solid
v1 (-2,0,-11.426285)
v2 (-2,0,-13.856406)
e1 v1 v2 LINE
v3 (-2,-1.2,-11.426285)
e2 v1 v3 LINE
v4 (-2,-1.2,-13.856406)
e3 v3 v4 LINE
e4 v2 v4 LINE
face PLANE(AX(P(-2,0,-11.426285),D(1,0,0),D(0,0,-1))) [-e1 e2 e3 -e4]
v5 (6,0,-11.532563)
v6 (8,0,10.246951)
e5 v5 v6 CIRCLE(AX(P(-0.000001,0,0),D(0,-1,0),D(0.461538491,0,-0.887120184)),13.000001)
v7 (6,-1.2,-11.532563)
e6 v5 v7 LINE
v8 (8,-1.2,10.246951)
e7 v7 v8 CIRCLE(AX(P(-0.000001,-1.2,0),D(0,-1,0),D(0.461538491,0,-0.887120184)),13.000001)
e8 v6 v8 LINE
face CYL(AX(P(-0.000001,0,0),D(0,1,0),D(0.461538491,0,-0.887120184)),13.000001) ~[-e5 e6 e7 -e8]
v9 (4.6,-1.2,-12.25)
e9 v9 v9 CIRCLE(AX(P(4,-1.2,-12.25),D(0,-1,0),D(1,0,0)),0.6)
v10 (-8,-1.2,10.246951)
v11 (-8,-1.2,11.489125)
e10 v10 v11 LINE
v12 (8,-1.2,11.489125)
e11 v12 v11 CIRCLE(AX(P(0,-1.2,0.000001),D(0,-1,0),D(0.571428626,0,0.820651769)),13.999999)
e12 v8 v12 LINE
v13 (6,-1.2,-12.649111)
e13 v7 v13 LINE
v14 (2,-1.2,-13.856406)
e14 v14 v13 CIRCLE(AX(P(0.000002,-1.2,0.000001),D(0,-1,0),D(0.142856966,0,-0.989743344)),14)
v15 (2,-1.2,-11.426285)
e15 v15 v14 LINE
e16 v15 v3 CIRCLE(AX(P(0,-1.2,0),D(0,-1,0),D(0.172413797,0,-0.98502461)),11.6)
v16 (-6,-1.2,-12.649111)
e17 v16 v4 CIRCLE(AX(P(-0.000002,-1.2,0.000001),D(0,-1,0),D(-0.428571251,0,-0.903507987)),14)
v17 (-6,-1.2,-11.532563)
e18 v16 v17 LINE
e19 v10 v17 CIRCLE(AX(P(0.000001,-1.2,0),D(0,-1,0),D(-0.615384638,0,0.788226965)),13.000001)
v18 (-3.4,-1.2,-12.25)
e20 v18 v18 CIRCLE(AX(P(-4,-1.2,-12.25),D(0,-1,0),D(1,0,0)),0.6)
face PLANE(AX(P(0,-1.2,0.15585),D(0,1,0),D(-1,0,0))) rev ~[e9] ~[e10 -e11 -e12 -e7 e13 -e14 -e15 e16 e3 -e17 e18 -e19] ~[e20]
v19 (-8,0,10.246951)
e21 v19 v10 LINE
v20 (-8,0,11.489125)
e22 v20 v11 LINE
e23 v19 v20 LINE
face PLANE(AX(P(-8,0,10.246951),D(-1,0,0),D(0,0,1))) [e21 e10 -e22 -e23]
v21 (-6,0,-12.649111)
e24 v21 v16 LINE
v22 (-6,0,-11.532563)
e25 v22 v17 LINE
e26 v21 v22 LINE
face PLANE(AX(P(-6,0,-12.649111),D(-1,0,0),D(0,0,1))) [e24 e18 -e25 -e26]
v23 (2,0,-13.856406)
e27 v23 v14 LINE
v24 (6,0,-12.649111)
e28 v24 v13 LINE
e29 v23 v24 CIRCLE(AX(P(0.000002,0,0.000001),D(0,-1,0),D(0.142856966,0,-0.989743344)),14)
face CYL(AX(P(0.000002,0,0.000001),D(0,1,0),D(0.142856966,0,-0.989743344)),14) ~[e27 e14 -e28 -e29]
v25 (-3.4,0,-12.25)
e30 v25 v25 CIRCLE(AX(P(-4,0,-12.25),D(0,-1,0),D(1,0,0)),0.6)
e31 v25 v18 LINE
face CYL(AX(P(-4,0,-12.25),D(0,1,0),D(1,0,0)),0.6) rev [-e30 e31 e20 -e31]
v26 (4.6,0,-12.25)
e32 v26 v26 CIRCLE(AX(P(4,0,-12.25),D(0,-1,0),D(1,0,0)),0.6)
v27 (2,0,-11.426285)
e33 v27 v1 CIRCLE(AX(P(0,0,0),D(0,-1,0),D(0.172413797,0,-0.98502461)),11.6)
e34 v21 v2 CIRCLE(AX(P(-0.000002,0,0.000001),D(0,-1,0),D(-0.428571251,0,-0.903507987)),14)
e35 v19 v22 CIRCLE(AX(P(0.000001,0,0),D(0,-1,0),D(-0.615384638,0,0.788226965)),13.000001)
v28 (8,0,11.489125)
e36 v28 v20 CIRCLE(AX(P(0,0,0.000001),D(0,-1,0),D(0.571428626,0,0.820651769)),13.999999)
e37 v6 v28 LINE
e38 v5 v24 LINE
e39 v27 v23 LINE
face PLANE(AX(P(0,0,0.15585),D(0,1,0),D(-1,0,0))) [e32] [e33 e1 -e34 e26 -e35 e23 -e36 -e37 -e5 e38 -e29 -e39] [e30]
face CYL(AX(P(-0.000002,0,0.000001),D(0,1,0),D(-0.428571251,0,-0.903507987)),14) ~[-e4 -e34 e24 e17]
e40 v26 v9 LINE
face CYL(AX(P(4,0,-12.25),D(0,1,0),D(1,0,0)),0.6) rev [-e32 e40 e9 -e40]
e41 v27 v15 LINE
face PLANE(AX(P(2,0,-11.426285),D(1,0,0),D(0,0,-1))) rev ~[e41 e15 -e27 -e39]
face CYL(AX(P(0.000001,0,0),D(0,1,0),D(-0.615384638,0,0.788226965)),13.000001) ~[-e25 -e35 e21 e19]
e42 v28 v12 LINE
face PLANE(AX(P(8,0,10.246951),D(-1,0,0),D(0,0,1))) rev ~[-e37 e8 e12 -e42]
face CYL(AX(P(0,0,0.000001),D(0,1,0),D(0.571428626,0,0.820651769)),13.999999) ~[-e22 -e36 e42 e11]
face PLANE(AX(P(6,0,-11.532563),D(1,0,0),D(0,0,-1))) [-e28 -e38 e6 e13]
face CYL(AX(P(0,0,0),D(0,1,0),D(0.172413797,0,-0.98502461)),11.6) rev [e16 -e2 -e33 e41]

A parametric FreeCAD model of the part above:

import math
import FreeCAD as App
import Part
import Sketcher
from FreeCAD import Vector

doc = App.newDocument("Part")
body = doc.addObject("PartDesign::Body", "Body")

sketch1 = body.newObject("Sketcher::SketchObject", "Sketch")
sketch1.AttachmentSupport = (doc.getObject("XZ_Plane"), [""])
sketch1.MapMode = "FlatFace"
sketch1.addGeometry([
    Part.ArcOfCircle(Part.Circle(Vector(0, 0, 0), Vector(0, 0, 1), 11.6), math.radians(-80), math.radians(260)),
    Part.LineSegment(Vector(2, -11.4, 0), Vector(2, -13.9, 0)),
    Part.ArcOfCircle(Part.Circle(Vector(0, 0, 0), Vector(0, 0, 1), 14), math.radians(-81.79), math.radians(-64.62)),
    Part.LineSegment(Vector(6, -12.6, 0), Vector(6, -11.5, 0)),
    Part.ArcOfCircle(Part.Circle(Vector(0, 0, 0), Vector(0, 0, 1), 13), math.radians(-63), math.radians(52)),
    Part.LineSegment(Vector(8, 10.2, 0), Vector(8, 11.5, 0)),
    Part.ArcOfCircle(Part.Circle(Vector(0, 0, 0), Vector(0, 0, 1), 14), math.radians(55), math.radians(125)),
    Part.LineSegment(Vector(-8, 11.5, 0), Vector(-8, 10.2, 0)),
    Part.ArcOfCircle(Part.Circle(Vector(0, 0, 0), Vector(0, 0, 1), 13), math.radians(128), math.radians(243)),
    Part.LineSegment(Vector(-6, -11.5, 0), Vector(-6, -12.6, 0)),
    Part.ArcOfCircle(Part.Circle(Vector(0, 0, 0), Vector(0, 0, 1), 14), math.radians(-115.38), math.radians(-98.21)),
    Part.LineSegment(Vector(-2, -13.9, 0), Vector(-2, -11.4, 0)),
    Part.Circle(Vector(4, -12.2, 0), Vector(0, 0, 1), 0.6),
    Part.Circle(Vector(-4, -12.2, 0), Vector(0, 0, 1), 0.6),
], False)
sketch1.addConstraint([
    Sketcher.Constraint("Coincident", 0, 1, 1, 1),
    Sketcher.Constraint("Coincident", 1, 2, 2, 1),
    Sketcher.Constraint("Coincident", 2, 2, 3, 1),
    Sketcher.Constraint("Coincident", 3, 2, 4, 1),
    Sketcher.Constraint("Coincident", 4, 2, 5, 1),
    Sketcher.Constraint("Coincident", 5, 2, 6, 1),
    Sketcher.Constraint("Coincident", 6, 2, 7, 1),
    Sketcher.Constraint("Coincident", 7, 2, 8, 1),
    Sketcher.Constraint("Coincident", 8, 2, 9, 1),
    Sketcher.Constraint("Coincident", 9, 2, 10, 1),
    Sketcher.Constraint("Coincident", 10, 2, 11, 1),
    Sketcher.Constraint("Coincident", 11, 2, 0, 2),
    Sketcher.Constraint("Vertical", 1),
    Sketcher.Constraint("Vertical", 3),
    Sketcher.Constraint("Vertical", 5),
    Sketcher.Constraint("Vertical", 7),
    Sketcher.Constraint("Vertical", 9),
    Sketcher.Constraint("Vertical", 11),
    Sketcher.Constraint("Coincident", 0, 3, -1, 1),
    Sketcher.Constraint("Coincident", 2, 3, -1, 1),
    Sketcher.Constraint("Coincident", 4, 3, -1, 1),
    Sketcher.Constraint("Coincident", 6, 3, -1, 1),
    Sketcher.Constraint("Coincident", 8, 3, -1, 1),
    Sketcher.Constraint("Coincident", 10, 3, -1, 1),
    Sketcher.Constraint("Equal", 2, 6),
    Sketcher.Constraint("Equal", 4, 8),
    Sketcher.Constraint("Equal", 6, 10),
    Sketcher.Constraint("Equal", 12, 13),
    Sketcher.Constraint("Symmetric", 12, 3, 13, 3, -2),
    Sketcher.Constraint("Horizontal", 5, 2, 6, 2),
    Sketcher.Constraint("Horizontal", 3, 2, 8, 2),
    Sketcher.Constraint("Horizontal", 1, 2, 10, 2),
    Sketcher.Constraint("Radius", 2, 14.0),
    Sketcher.Constraint("Radius", 4, 13.000001),
    Sketcher.Constraint("Diameter", 12, 1.2),
    Sketcher.Constraint("Radius", 0, 11.6),
    Sketcher.Constraint("DistanceX", -1, 1, 12, 3, 4.0),
    Sketcher.Constraint("DistanceX", -1, 1, 0, 1, 2.0),
    Sketcher.Constraint("DistanceX", -1, 1, 2, 2, 6.0),
    Sketcher.Constraint("DistanceX", -1, 1, 4, 2, 8.0),
    Sketcher.Constraint("DistanceY", 12, 3, -1, 1, 12.25),
])
pad1 = body.newObject("PartDesign::Pad", "Pad")
pad1.Profile = sketch1
pad1.Length = 1.2

doc.recompute()
